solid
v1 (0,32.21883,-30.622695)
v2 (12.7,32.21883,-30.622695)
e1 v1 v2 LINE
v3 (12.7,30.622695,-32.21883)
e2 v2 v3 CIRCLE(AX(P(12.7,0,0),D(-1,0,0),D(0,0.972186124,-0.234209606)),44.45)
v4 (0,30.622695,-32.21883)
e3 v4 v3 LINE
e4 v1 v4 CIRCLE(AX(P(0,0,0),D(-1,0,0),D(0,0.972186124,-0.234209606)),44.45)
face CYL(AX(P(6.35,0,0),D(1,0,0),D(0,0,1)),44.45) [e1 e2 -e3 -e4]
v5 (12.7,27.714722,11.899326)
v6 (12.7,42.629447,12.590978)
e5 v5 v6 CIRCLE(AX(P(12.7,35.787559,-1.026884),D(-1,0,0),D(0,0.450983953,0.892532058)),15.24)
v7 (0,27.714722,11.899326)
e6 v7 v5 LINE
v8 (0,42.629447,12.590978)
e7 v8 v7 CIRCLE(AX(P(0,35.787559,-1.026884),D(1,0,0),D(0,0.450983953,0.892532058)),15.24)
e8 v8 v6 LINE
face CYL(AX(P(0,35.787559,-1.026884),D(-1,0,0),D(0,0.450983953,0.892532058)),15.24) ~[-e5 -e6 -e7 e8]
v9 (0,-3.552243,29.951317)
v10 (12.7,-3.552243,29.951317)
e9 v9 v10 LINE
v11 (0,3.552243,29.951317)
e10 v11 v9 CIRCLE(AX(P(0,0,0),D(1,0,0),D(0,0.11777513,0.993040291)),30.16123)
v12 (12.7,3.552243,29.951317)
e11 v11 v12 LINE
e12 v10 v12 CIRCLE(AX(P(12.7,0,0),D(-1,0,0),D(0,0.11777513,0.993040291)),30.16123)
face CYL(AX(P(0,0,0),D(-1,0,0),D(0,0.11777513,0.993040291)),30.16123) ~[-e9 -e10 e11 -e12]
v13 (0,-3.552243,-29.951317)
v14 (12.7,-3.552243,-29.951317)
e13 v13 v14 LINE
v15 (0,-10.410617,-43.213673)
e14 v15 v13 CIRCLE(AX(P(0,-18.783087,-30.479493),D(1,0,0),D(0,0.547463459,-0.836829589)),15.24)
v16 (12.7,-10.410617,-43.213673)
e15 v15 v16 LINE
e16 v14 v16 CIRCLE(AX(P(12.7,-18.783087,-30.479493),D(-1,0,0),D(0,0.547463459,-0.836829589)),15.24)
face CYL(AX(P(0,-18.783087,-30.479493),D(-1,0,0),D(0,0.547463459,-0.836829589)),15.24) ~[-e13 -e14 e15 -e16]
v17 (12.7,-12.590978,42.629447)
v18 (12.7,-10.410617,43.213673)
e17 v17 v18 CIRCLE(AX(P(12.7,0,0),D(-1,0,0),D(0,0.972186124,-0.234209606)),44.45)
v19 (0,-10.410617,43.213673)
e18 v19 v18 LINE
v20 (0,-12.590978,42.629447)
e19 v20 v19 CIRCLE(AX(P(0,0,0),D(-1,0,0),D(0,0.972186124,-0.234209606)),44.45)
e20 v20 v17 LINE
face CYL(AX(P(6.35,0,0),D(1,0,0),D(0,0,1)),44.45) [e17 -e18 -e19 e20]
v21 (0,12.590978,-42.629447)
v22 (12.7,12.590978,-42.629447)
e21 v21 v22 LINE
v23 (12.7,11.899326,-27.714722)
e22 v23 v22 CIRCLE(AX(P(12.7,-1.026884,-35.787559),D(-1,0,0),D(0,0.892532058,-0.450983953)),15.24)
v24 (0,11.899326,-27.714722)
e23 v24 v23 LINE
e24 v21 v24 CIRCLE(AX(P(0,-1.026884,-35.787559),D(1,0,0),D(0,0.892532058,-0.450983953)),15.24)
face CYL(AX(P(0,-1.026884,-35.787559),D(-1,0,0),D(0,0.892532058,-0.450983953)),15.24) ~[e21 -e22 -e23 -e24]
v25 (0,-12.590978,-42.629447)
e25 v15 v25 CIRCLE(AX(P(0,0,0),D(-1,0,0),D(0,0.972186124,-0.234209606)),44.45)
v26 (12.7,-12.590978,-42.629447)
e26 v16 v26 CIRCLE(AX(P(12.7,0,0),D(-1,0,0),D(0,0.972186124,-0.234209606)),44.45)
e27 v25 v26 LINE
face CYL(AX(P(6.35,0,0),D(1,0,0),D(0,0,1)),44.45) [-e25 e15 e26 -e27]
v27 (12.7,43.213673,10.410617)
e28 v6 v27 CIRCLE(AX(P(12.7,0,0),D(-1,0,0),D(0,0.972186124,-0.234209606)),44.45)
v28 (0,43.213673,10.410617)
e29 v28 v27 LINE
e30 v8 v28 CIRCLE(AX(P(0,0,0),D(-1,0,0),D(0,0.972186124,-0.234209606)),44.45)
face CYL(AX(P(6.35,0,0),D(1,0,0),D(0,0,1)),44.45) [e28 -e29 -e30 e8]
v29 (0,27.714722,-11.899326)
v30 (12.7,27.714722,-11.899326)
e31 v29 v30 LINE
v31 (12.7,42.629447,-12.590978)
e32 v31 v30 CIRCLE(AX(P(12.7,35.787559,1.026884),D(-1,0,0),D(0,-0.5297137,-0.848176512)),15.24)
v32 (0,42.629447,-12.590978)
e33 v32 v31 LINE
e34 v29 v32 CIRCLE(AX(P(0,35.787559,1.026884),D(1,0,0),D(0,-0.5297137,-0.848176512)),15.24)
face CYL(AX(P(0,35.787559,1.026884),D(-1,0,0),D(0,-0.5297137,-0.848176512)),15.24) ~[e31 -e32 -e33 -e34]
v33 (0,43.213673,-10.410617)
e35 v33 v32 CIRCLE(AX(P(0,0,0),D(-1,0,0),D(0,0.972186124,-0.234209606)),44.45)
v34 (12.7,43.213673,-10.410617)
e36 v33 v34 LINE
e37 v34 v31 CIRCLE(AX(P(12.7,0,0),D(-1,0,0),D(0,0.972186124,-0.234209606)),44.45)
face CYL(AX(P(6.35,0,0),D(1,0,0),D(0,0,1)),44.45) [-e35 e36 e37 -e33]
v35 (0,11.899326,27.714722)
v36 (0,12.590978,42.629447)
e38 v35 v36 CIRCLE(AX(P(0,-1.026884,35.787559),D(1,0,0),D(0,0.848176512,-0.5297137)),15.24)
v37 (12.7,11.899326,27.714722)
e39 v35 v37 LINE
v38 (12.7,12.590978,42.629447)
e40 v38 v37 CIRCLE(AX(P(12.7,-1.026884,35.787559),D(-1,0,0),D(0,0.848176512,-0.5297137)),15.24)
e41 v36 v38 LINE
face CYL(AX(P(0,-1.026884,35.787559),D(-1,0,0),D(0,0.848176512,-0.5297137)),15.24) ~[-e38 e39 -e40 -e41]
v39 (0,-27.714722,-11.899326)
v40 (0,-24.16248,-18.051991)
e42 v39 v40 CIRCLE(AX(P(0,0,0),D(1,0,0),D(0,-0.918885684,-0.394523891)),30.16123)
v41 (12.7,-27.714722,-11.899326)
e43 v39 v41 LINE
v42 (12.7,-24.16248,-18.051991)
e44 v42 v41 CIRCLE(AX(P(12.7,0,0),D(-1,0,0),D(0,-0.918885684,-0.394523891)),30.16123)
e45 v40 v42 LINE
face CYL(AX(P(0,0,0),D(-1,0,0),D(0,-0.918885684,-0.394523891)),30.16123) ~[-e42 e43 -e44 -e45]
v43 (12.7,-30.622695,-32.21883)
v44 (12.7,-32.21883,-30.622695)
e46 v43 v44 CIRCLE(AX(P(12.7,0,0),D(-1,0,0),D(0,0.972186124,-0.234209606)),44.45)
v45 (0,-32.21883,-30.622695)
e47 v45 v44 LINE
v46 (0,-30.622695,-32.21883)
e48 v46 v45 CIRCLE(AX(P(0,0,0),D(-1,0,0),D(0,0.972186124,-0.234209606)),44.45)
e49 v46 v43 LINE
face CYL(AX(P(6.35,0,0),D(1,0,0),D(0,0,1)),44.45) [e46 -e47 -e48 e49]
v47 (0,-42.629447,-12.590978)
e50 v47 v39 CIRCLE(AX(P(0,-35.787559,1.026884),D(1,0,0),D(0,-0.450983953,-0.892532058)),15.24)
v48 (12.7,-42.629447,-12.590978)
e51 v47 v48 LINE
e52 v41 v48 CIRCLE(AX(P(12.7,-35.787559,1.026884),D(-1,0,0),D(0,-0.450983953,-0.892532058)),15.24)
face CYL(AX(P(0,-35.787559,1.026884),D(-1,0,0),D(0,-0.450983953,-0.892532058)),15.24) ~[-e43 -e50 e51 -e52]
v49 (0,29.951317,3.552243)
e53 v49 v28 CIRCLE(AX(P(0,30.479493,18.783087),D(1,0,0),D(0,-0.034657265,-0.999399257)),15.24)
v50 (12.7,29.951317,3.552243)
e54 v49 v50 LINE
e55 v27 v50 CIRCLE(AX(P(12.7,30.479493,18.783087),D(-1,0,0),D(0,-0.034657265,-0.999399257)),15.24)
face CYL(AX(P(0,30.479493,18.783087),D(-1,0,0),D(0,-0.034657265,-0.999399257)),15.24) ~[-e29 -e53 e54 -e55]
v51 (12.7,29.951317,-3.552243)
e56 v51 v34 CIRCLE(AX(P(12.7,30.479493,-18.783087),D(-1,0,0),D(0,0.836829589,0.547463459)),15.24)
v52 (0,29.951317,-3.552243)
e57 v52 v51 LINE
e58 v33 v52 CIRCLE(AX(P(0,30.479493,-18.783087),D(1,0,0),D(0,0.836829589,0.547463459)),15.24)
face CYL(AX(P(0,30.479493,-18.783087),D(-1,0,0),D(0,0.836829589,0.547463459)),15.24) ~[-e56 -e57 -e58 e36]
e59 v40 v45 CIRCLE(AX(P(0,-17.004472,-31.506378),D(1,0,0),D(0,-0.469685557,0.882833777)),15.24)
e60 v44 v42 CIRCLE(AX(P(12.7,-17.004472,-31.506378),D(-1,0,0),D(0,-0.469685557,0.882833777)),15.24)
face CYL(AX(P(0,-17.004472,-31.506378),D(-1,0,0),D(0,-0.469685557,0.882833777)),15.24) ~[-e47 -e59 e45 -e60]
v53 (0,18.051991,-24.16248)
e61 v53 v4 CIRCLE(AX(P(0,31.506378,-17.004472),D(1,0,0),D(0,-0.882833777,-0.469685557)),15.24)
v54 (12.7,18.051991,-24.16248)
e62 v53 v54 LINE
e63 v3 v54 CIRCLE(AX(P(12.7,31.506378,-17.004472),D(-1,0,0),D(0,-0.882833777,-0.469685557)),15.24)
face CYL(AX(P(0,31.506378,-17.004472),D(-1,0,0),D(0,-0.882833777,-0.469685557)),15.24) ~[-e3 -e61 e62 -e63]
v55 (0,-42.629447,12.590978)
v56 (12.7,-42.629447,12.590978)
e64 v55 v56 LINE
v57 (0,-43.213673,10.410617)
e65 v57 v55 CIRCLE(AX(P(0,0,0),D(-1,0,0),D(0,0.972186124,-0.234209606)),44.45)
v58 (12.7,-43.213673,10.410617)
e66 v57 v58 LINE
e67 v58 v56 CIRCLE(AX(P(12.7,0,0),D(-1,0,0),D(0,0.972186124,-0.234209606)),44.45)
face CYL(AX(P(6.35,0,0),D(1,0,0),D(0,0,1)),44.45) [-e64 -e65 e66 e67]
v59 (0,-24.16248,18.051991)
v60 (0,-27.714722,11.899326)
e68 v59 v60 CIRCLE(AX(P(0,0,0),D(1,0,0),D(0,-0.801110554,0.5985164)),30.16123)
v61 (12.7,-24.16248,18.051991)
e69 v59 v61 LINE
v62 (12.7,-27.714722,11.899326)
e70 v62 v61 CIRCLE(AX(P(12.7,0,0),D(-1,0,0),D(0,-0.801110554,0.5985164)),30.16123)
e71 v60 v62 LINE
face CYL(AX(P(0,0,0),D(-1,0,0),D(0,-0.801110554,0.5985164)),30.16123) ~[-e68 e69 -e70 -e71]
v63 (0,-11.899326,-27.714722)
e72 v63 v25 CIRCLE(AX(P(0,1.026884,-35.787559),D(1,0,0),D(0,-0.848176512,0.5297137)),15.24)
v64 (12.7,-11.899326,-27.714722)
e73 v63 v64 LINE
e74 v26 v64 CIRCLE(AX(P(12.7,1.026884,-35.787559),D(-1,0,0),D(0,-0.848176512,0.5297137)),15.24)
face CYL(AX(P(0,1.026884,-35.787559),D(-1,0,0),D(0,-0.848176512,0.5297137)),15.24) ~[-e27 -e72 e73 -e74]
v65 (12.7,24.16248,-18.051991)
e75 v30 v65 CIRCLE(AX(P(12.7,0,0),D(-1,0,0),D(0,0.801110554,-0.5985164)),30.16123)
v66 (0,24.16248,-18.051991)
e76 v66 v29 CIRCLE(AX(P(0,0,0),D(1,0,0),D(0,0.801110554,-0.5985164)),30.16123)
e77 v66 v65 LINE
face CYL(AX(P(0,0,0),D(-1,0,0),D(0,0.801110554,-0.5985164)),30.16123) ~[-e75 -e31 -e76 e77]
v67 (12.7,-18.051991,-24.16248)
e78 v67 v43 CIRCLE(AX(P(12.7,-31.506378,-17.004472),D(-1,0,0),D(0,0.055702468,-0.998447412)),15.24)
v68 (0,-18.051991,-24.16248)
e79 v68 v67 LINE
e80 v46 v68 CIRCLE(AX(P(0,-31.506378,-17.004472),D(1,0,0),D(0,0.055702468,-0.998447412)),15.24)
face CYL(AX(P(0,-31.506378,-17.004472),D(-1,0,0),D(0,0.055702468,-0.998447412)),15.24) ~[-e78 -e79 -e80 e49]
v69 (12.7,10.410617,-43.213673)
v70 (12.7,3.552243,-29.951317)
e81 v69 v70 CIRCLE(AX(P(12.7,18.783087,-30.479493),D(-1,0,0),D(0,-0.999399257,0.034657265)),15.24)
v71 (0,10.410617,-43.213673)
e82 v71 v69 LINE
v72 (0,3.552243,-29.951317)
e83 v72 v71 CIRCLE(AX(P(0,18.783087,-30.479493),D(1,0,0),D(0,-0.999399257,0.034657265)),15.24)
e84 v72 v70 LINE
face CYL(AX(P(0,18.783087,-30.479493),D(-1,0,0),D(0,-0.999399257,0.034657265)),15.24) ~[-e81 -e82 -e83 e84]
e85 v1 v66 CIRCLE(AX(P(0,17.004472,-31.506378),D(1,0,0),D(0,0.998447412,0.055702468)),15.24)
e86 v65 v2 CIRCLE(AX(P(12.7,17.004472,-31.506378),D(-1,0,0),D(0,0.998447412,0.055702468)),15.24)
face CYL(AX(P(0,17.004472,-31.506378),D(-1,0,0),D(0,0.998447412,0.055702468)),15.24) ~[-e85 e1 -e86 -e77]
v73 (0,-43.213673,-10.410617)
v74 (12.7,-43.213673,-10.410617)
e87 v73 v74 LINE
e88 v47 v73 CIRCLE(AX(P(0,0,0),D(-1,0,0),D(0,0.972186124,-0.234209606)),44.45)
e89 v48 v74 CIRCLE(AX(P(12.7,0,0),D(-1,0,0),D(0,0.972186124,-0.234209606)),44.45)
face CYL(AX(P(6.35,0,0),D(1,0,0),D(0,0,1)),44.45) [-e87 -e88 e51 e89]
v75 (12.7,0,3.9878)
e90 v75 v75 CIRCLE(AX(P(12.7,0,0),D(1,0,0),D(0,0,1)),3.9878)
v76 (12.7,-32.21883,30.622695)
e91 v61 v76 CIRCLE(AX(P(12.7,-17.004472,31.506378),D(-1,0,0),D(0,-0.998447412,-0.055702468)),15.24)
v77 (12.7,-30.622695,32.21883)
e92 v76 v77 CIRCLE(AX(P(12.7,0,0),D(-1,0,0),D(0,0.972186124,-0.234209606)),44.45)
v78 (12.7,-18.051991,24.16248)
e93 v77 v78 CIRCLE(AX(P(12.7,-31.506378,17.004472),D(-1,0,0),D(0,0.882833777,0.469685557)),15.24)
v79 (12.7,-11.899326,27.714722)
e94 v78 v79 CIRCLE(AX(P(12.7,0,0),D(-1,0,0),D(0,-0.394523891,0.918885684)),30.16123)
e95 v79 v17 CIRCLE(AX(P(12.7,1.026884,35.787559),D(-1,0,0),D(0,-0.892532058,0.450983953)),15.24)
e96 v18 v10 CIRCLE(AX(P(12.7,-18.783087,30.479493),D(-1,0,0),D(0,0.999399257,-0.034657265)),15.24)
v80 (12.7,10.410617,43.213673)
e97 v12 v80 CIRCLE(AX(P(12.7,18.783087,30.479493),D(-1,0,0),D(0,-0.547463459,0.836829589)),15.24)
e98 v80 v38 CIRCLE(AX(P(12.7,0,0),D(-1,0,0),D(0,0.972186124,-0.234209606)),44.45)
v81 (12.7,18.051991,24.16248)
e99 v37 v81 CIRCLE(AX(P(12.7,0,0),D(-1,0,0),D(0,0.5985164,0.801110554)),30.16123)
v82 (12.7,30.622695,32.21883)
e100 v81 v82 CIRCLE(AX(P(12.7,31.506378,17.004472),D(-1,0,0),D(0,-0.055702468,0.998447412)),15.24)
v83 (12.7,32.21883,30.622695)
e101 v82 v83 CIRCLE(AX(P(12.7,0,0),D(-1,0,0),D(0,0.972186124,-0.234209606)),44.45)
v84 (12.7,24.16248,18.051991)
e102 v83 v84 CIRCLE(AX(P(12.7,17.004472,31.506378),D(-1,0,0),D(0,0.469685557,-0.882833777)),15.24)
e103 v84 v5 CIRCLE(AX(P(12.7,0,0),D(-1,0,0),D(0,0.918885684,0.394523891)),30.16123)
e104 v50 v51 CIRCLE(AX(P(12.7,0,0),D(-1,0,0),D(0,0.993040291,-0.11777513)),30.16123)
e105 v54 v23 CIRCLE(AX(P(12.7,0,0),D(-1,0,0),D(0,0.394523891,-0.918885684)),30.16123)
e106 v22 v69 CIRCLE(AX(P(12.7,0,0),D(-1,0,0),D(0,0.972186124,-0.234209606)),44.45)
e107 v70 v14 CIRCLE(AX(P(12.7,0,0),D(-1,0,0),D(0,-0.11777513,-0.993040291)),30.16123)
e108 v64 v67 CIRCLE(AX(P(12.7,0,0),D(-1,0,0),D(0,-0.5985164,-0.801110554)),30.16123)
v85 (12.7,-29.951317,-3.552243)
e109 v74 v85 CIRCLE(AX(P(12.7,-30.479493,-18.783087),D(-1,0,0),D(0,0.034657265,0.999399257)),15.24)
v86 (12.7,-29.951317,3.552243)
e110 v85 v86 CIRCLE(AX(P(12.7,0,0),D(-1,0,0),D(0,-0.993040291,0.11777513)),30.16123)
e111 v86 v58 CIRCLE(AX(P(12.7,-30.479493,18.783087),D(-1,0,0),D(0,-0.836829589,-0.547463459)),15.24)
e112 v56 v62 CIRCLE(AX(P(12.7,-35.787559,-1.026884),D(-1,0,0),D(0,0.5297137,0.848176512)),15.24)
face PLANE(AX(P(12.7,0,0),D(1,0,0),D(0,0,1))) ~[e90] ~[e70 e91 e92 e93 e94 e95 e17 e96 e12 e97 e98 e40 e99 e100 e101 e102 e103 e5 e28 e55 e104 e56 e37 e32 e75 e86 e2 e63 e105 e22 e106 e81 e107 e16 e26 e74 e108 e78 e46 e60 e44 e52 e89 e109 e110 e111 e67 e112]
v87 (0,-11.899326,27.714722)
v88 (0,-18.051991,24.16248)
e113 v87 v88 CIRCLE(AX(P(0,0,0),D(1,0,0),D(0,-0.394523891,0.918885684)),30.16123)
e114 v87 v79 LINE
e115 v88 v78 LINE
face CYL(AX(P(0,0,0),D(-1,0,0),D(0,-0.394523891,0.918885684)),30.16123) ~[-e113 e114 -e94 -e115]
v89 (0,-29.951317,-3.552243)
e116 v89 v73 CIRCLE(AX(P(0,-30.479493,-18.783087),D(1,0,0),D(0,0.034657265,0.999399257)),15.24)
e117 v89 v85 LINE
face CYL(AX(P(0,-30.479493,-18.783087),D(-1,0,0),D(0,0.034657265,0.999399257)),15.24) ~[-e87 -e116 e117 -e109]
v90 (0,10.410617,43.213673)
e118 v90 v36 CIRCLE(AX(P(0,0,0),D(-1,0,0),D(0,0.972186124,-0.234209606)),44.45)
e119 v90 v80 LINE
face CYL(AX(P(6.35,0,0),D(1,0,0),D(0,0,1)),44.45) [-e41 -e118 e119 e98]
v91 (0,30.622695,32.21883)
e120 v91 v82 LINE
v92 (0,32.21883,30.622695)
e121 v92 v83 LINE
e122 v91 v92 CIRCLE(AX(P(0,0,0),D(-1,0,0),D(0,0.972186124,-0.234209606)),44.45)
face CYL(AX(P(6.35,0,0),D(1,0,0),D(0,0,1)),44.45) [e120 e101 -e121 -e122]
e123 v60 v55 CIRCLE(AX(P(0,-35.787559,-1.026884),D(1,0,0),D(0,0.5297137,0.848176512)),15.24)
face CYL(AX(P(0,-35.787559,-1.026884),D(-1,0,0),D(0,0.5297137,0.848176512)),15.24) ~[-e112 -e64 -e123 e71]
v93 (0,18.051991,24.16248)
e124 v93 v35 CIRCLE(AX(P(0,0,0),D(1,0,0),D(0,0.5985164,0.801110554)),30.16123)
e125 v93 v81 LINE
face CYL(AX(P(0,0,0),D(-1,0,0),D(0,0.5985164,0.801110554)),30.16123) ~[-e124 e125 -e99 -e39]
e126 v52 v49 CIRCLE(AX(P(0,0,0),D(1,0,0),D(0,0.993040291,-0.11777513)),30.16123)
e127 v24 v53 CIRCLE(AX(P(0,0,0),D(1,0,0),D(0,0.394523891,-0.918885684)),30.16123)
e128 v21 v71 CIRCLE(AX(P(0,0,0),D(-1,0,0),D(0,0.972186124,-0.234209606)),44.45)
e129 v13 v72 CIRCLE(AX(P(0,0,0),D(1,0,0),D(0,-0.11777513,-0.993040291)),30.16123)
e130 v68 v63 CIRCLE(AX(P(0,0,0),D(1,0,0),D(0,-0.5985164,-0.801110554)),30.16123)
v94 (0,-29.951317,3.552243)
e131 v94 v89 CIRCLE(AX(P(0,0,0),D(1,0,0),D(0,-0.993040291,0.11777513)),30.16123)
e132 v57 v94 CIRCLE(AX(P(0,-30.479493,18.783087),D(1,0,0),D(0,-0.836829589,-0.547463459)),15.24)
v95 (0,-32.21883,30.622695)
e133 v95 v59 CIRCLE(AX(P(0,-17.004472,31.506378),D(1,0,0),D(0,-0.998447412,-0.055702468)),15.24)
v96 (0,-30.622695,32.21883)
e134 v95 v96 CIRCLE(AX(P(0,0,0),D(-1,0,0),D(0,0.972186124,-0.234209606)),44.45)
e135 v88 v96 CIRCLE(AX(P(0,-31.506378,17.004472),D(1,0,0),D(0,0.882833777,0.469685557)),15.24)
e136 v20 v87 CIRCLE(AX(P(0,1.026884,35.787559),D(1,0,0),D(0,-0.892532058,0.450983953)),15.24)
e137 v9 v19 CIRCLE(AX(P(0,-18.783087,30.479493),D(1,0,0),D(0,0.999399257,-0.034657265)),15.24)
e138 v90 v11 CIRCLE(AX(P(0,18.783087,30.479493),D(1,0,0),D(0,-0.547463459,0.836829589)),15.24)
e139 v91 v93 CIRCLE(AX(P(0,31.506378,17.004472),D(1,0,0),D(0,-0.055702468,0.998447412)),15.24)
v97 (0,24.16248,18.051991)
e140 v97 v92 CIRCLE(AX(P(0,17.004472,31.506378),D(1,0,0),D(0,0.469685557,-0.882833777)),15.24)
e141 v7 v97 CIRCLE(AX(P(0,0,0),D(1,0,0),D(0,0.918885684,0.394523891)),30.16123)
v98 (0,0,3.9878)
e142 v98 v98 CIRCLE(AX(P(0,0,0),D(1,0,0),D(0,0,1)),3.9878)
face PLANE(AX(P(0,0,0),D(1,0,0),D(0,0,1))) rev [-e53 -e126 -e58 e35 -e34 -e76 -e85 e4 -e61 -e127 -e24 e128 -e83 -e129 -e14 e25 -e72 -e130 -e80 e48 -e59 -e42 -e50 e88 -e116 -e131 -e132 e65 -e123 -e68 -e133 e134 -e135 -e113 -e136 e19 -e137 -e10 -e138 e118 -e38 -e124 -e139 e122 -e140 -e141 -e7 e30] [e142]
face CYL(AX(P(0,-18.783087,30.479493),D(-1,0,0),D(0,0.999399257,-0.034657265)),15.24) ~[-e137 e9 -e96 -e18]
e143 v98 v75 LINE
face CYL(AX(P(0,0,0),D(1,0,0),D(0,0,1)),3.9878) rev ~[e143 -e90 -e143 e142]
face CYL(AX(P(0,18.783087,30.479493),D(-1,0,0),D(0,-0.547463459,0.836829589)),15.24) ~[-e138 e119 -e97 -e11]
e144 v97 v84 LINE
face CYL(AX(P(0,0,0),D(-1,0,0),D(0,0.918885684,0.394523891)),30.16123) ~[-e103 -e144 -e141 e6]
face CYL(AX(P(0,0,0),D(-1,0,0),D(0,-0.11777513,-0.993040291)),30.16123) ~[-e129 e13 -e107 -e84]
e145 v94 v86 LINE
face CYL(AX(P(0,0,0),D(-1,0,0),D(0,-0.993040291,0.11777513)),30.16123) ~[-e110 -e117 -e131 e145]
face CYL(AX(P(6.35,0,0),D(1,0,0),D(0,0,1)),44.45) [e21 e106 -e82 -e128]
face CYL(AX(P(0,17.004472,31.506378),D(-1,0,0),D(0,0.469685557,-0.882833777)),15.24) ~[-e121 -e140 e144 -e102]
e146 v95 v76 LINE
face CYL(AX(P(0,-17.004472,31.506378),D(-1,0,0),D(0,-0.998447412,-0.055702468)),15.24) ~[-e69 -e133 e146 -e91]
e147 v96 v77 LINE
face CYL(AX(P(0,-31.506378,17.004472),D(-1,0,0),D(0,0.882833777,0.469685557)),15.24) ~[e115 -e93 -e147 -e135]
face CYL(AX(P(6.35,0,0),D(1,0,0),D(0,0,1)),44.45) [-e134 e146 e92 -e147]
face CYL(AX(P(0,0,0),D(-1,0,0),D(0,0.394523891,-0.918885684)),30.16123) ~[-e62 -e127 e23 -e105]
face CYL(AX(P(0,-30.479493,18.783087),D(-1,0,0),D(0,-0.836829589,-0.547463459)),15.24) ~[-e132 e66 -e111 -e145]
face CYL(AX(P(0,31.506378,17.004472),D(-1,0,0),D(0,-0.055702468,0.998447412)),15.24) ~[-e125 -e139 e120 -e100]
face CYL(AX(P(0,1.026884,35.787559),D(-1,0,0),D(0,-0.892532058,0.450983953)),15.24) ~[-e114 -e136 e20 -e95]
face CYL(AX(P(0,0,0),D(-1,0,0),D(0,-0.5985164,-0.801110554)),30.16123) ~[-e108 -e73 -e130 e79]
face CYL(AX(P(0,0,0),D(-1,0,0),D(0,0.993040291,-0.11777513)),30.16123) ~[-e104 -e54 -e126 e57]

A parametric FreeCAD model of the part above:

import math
import FreeCAD as App
import Part
import Sketcher
from FreeCAD import Vector
Q = App.Units.Quantity

doc = App.newDocument("Part")
body = doc.addObject("PartDesign::Body", "Body")

# Sketch on XZ plane
sketch1 = body.newObject("Sketcher::SketchObject", "Sketch")
sketch1.AttachmentSupport = (doc.getObject("XZ_Plane"), [""])
sketch1.MapMode = "FlatFace"
sketch1.addGeometry([
    Part.LineSegment(Vector(0, -44, 0), Vector(0, 0, 0)),
    Part.LineSegment(Vector(0, 0, 0), Vector(13, 0, 0)),
    Part.LineSegment(Vector(13, 0, 0), Vector(13, -44, 0)),
    Part.LineSegment(Vector(13, -44, 0), Vector(0, -44, 0)),
], False)
sketch1.addConstraint([
    Sketcher.Constraint("Coincident", 0, 2, 1, 1),
    Sketcher.Constraint("Coincident", 1, 2, 2, 1),
    Sketcher.Constraint("Coincident", 2, 2, 3, 1),
    Sketcher.Constraint("Coincident", 3, 2, 0, 1),
    Sketcher.Constraint("Vertical", 0),
    Sketcher.Constraint("Horizontal", 1),
    Sketcher.Constraint("Vertical", 2),
    Sketcher.Constraint("Horizontal", 3),
    Sketcher.Constraint("Coincident", 0, 2, -1, 1),
    Sketcher.Constraint("DistanceX", 1, 1, 1, 2, Q("0.5 in")),
    Sketcher.Constraint("DistanceY", 0, 1, 0, 2, Q("1.75 in")),
])
revolution = body.newObject("PartDesign::Revolution", "Revolution")
revolution.Profile = sketch1
revolution.ReferenceAxis = (sketch1, ["H_Axis"])
revolution.Angle = 360

# Sketch on YZ plane
sketch2 = body.newObject("Sketcher::SketchObject", "Sketch001")
sketch2.AttachmentSupport = (doc.getObject("YZ_Plane"), [""])
sketch2.MapMode = "FlatFace"
sketch2.addGeometry([
    Part.ArcOfCircle(Part.Circle(Vector(0, 0, 0), Vector(0, 0, 1), 30), math.radians(-6.76), math.radians(6.76)),
    Part.ArcOfCircle(Part.Circle(Vector(30, -19, 0), Vector(0, 0, 1), 15), math.radians(33), math.radians(92)),
    Part.ArcOfCircle(Part.Circle(Vector(0, 0, 0), Vector(0, 0, 1), 44), math.radians(-14), math.radians(14)),
    Part.ArcOfCircle(Part.Circle(Vector(30, 19, 0), Vector(0, 0, 1), 15), math.radians(-92), math.radians(-33)),
], False)
sketch2.addConstraint([
    Sketcher.Constraint("Coincident", 0, 1, 1, 2),
    Sketcher.Constraint("Coincident", 1, 1, 2, 1),
    Sketcher.Constraint("Coincident", 2, 2, 3, 2),
    Sketcher.Constraint("Coincident", 3, 1, 0, 2),
    Sketcher.Constraint("Coincident", 0, 3, -1, 1),
    Sketcher.Constraint("Coincident", 2, 3, -1, 1),
    Sketcher.Constraint("Equal", 1, 3),
    Sketcher.Constraint("Symmetric", 1, 3, 3, 3, -1),
    Sketcher.Constraint("Radius", 1, Q("0.6 in")),
    Sketcher.Constraint("Radius", 2, Q("1.751 in")),
    Sketcher.Constraint("Radius", 0, 30.16123),
    Sketcher.Constraint("DistanceY", 1, 1, 0, 1, 6.887502),
    Sketcher.Constraint("DistanceY", 0, 1, 3, 3, 22.33533),
])
pocket1 = body.newObject("PartDesign::Pocket", "Pocket")
pocket1.Profile = sketch2
pocket1.Type = "ThroughAll"
pocket1.Reversed = True
doc.recompute()

polarpattern = body.newObject("PartDesign::PolarPattern", "PolarPattern")
polarpattern.Originals = [pocket1]
polarpattern.Axis = (doc.getObject("X_Axis"), [""])
polarpattern.Angle = 360
polarpattern.Occurrences = 12
body.Tip = polarpattern

# Sketch on YZ plane
sketch3 = body.newObject("Sketcher::SketchObject", "Sketch002")
sketch3.AttachmentSupport = (doc.getObject("YZ_Plane"), [""])
sketch3.MapMode = "FlatFace"
sketch3.addGeometry(Part.Circle(Vector(0, 0, 0), Vector(0, 0, 1), 4), False)
sketch3.addConstraint([
    Sketcher.Constraint("Coincident", 0, 3, -1, 1),
    Sketcher.Constraint("Diameter", 0, Q("0.314 in")),
])
pocket2 = body.newObject("PartDesign::Pocket", "Pocket001")
pocket2.Profile = sketch3
pocket2.Length = 50.800102
pocket2.Midplane = True

doc.recompute()
